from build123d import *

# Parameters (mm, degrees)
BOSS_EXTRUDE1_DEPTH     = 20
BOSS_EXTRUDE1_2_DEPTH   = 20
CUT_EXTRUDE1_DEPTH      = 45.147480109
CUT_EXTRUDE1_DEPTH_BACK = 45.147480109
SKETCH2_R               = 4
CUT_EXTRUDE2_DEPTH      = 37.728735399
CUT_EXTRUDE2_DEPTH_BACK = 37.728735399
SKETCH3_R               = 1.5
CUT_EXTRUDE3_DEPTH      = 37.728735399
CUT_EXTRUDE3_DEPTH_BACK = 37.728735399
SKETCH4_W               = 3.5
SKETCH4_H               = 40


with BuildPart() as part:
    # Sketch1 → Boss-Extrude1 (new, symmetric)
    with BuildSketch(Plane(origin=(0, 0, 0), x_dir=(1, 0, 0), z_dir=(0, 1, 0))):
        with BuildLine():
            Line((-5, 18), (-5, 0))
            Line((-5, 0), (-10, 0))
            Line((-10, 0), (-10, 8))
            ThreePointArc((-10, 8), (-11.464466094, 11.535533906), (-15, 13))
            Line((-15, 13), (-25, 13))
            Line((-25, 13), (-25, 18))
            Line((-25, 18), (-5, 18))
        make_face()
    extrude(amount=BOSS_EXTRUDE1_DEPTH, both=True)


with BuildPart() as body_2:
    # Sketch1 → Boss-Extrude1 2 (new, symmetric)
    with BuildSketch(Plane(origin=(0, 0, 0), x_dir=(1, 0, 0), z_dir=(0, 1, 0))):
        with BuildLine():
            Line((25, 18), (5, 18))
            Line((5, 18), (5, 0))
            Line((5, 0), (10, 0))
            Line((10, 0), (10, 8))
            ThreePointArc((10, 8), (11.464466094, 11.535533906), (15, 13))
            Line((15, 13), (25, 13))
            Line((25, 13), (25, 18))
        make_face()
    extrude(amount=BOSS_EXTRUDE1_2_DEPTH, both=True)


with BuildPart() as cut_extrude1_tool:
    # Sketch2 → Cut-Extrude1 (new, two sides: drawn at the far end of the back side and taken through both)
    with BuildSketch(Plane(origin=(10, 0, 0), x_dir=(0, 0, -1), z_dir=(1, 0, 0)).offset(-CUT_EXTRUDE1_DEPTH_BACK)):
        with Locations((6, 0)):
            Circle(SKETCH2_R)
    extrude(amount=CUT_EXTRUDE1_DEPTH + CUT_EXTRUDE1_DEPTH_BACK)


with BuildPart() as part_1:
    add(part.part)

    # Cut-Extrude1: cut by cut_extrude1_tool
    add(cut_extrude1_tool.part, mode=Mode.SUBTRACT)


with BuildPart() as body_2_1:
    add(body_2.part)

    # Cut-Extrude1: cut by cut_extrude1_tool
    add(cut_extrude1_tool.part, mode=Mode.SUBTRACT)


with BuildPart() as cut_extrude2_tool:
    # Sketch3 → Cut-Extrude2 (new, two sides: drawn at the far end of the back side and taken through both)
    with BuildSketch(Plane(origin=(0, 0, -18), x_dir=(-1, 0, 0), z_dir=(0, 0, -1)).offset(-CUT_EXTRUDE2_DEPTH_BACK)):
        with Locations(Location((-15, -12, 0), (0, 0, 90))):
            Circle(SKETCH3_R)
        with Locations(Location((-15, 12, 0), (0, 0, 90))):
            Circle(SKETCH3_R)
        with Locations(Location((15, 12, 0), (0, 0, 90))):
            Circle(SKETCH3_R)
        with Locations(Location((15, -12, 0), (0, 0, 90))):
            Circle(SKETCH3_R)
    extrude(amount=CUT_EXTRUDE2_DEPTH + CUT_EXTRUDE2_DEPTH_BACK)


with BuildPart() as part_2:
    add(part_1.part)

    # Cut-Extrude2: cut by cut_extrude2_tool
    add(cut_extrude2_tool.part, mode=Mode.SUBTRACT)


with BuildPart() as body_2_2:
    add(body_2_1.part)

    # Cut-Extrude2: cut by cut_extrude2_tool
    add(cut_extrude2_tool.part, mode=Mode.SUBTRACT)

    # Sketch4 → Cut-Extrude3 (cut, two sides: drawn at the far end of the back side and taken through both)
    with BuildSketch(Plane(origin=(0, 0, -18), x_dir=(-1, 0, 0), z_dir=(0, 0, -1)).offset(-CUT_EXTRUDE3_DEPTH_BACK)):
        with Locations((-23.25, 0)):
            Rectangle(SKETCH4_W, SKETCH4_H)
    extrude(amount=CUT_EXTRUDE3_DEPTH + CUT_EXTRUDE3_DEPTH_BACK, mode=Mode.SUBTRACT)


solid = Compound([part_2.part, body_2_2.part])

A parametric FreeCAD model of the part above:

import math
import FreeCAD as App
import Part
import Sketcher
Q = App.Units.Quantity


def add_polygon(sketch, points):
    """Adds a closed chain of lines whose ends are joined by coincident constraints."""
    first, n = sketch.GeometryCount, len(points)
    for a, b in zip(points, points[1:] + points[:1]):
        sketch.addGeometry(Part.LineSegment(App.Vector(*a, 0), App.Vector(*b, 0)), False)
    for i in range(n):
        sketch.addConstraint(Sketcher.Constraint("Coincident", first + i, 2, first + (i + 1) % n, 1))

doc = App.newDocument("Part")
body = doc.addObject("PartDesign::Body", "Body")

# Sketch on XZ plane
sketch1 = body.newObject("Sketcher::SketchObject", "Sketch")
sketch1.AttachmentSupport = (doc.getObject("XZ_Plane"), [""])
sketch1.MapMode = "FlatFace"
sketch1.addGeometry([
    Part.LineSegment(App.Vector(-5, 0, 0), App.Vector(-5, -18, 0)),  # 0
    Part.LineSegment(App.Vector(-5, -18, 0), App.Vector(-25, -18, 0)),  # 1
    Part.LineSegment(App.Vector(-25, -18, 0), App.Vector(-25, -13, 0)),  # 2
    Part.LineSegment(App.Vector(-25, -13, 0), App.Vector(-15, -13, 0)),  # 3
    Part.ArcOfCircle(Part.Circle(App.Vector(-15, -8, 0), App.Vector(0, 0, 1), 5), math.radians(-90), math.radians(0)),  # 4
    Part.LineSegment(App.Vector(-10, -8, 0), App.Vector(-10, 0, 0)),  # 5
    Part.LineSegment(App.Vector(-10, 0, 0), App.Vector(-5, 0, 0)),  # 6
], False)
sketch1.addConstraint([
    Sketcher.Constraint("Coincident", 0, 2, 1, 1),
    Sketcher.Constraint("Coincident", 1, 2, 2, 1),
    Sketcher.Constraint("Coincident", 2, 2, 3, 1),
    Sketcher.Constraint("Tangent", 3, 2, 4, 1),
    Sketcher.Constraint("Tangent", 4, 2, 5, 1),
    Sketcher.Constraint("Coincident", 5, 2, 6, 1),
    Sketcher.Constraint("Coincident", 6, 2, 0, 1),
    Sketcher.Constraint("Vertical", 0),
    Sketcher.Constraint("Horizontal", 1),
    Sketcher.Constraint("Vertical", 2),
    Sketcher.Constraint("Horizontal", 3),
    Sketcher.Constraint("Vertical", 5),
    Sketcher.Constraint("Horizontal", 6),
    Sketcher.Constraint("PointOnObject", 5, 2, -1),
    Sketcher.Constraint("Equal", 6, 2),
    Sketcher.Constraint("Radius", 4, Q("5 mm")),
    Sketcher.Constraint("DistanceX", 1, 2, 1, 1, Q("20 mm")),
    Sketcher.Constraint("DistanceX", 3, 1, 3, 2, Q("10 mm")),
    Sketcher.Constraint("DistanceY", 0, 2, 0, 1, Q("18 mm")),
    Sketcher.Constraint("DistanceX", 4, 3, -1, 1, Q("15 mm")),
])
pad1 = body.newObject("PartDesign::Pad", "Pad")
pad1.Profile = sketch1
pad1.Length = 40
pad1.Midplane = True
body2 = doc.addObject("PartDesign::Body", "Body001")

# Sketch on XZ plane
sketch2 = body2.newObject("Sketcher::SketchObject", "Sketch001")
sketch2.AttachmentSupport = (doc.getObject("XZ_Plane001"), [""])
sketch2.MapMode = "FlatFace"
sketch2.addGeometry([
    Part.LineSegment(App.Vector(25, -18, 0), App.Vector(5, -18, 0)),  # 0
    Part.LineSegment(App.Vector(5, -18, 0), App.Vector(5, 0, 0)),  # 1
    Part.LineSegment(App.Vector(5, 0, 0), App.Vector(10, 0, 0)),  # 2
    Part.LineSegment(App.Vector(10, 0, 0), App.Vector(10, -8, 0)),  # 3
    Part.ArcOfCircle(Part.Circle(App.Vector(15, -8, 0), App.Vector(0, 0, 1), 5), math.radians(180), math.radians(270)),  # 4
    Part.LineSegment(App.Vector(15, -13, 0), App.Vector(25, -13, 0)),  # 5
    Part.LineSegment(App.Vector(25, -13, 0), App.Vector(25, -18, 0)),  # 6
], False)
sketch2.addConstraint([
    Sketcher.Constraint("Coincident", 0, 2, 1, 1),
    Sketcher.Constraint("Coincident", 1, 2, 2, 1),
    Sketcher.Constraint("Coincident", 2, 2, 3, 1),
    Sketcher.Constraint("Tangent", 3, 2, 4, 1),
    Sketcher.Constraint("Tangent", 4, 2, 5, 1),
    Sketcher.Constraint("Coincident", 5, 2, 6, 1),
    Sketcher.Constraint("Coincident", 6, 2, 0, 1),
    Sketcher.Constraint("Horizontal", 0),
    Sketcher.Constraint("Vertical", 1),
    Sketcher.Constraint("Horizontal", 2),
    Sketcher.Constraint("Vertical", 3),
    Sketcher.Constraint("Horizontal", 5),
    Sketcher.Constraint("Vertical", 6),
    Sketcher.Constraint("PointOnObject", 1, 2, -1),
    Sketcher.Constraint("Equal", 2, 6),
    Sketcher.Constraint("Radius", 4, Q("5 mm")),
    Sketcher.Constraint("DistanceX", 0, 2, 0, 1, Q("20 mm")),
    Sketcher.Constraint("DistanceX", 2, 1, 2, 2, Q("5 mm")),
    Sketcher.Constraint("DistanceY", 1, 1, 1, 2, Q("18 mm")),
    Sketcher.Constraint("DistanceX", -1, 1, 4, 3, Q("15 mm")),
])
pad2 = body2.newObject("PartDesign::Pad", "Pad001")
pad2.Profile = sketch2
pad2.Length = 40
pad2.Midplane = True
body3 = doc.addObject("PartDesign::Body", "Body002")

# Sketch on YZ plane
sketch3 = body3.newObject("Sketcher::SketchObject", "Sketch002")
sketch3.AttachmentSupport = (doc.getObject("YZ_Plane002"), [""])
sketch3.MapMode = "FlatFace"
sketch3.AttachmentOffset = App.Placement(App.Vector(0, 0, 10), App.Rotation())
sketch3.addGeometry(Part.Circle(App.Vector(0, -6, 0), App.Vector(0, 0, 1), 4), False)
sketch3.addConstraint([
    Sketcher.Constraint("PointOnObject", 0, 3, -2),
    Sketcher.Constraint("Diameter", 0, Q("8 mm")),
    Sketcher.Constraint("DistanceY", 0, 3, -1, 1, Q("6 mm")),
])
pad3 = body3.newObject("PartDesign::Pad", "Pad002")
pad3.Profile = sketch3
pad3.Type = "TwoLengths"
pad3.Length = 45.14748
pad3.Length2 = 45.14748
doc.recompute()

body4 = doc.addObject("PartDesign::Body", "Body003")
body4.BaseFeature = body3
boolean = body.newObject("PartDesign::Boolean", "Boolean")
boolean.Type = "Cut"
boolean.addObjects([body4])
doc.recompute()

boolean2 = body2.newObject("PartDesign::Boolean", "Boolean001")
boolean2.Type = "Cut"
boolean2.addObjects([body3])
body5 = doc.addObject("PartDesign::Body", "Body004")
body5.AllowCompound = True

# Sketch on XY plane
sketch4 = body5.newObject("Sketcher::SketchObject", "Sketch003")
sketch4.AttachmentSupport = (doc.getObject("XY_Plane004"), [""])
sketch4.MapMode = "FlatFace"
sketch4.AttachmentOffset = App.Placement(App.Vector(0, 0, -18), App.Rotation())
sketch4.addGeometry([
    Part.Circle(App.Vector(15, -12, 0), App.Vector(0, 0, 1), 1.5),
    Part.Circle(App.Vector(15, 12, 0), App.Vector(0, 0, 1), 1.5),
    Part.Circle(App.Vector(-15, 12, 0), App.Vector(0, 0, 1), 1.5),
    Part.Circle(App.Vector(-15, -12, 0), App.Vector(0, 0, 1), 1.5),
], False)
sketch4.addConstraint([
    Sketcher.Constraint("Equal", 0, 1),
    Sketcher.Constraint("Equal", 1, 2),
    Sketcher.Constraint("Equal", 2, 3),
    Sketcher.Constraint("Symmetric", 0, 3, 2, 3, -1, 1),
    Sketcher.Constraint("Symmetric", 1, 3, 3, 3, -1, 1),
    Sketcher.Constraint("Symmetric", 1, 3, 2, 3, -2),
    Sketcher.Constraint("Diameter", 0, Q("3 mm")),
    Sketcher.Constraint("DistanceX", -1, 1, 0, 3, Q("15 mm")),
    Sketcher.Constraint("DistanceY", 0, 3, -1, 1, Q("12 mm")),
])
pad4 = body5.newObject("PartDesign::Pad", "Pad003")
pad4.Profile = sketch4
pad4.Type = "TwoLengths"
pad4.Length = 37.728735
pad4.Length2 = 37.728735
pad4.Reversed = True
doc.recompute()

body6 = doc.addObject("PartDesign::Body", "Body005")
body6.BaseFeature = body5
boolean3 = body.newObject("PartDesign::Boolean", "Boolean002")
boolean3.Type = "Cut"
boolean3.addObjects([body6])
doc.recompute()

boolean4 = body2.newObject("PartDesign::Boolean", "Boolean003")
boolean4.Type = "Cut"
boolean4.addObjects([body5])

# Sketch on XY plane
sketch5 = body2.newObject("Sketcher::SketchObject", "Sketch004")
sketch5.AttachmentSupport = (doc.getObject("XY_Plane001"), [""])
sketch5.MapMode = "FlatFace"
sketch5.AttachmentOffset = App.Placement(App.Vector(0, 0, -18), App.Rotation())
add_polygon(sketch5, [(25, 20), (25, -20), (21.5, -20), (21.5, 20)])  # lines 0-3
sketch5.addConstraint([
    Sketcher.Constraint("Vertical", 0),
    Sketcher.Constraint("Horizontal", 1),
    Sketcher.Constraint("Vertical", 2),
    Sketcher.Constraint("Horizontal", 3),
    Sketcher.Constraint("DistanceY", 0, 2, 0, 1, Q("40 mm")),
    Sketcher.Constraint("DistanceX", 1, 2, 1, 1, Q("3.5 mm")),
    Sketcher.Constraint("DistanceX", -1, 1, 0, 2, Q("25 mm")),
    Sketcher.Constraint("DistanceY", 0, 2, -1, 1, Q("20 mm")),
])
pocket1 = body2.newObject("PartDesign::Pocket", "Pocket")
pocket1.Profile = sketch5
pocket1.Type = "ThroughAll"
pocket1.Midplane = True

doc.recompute()
